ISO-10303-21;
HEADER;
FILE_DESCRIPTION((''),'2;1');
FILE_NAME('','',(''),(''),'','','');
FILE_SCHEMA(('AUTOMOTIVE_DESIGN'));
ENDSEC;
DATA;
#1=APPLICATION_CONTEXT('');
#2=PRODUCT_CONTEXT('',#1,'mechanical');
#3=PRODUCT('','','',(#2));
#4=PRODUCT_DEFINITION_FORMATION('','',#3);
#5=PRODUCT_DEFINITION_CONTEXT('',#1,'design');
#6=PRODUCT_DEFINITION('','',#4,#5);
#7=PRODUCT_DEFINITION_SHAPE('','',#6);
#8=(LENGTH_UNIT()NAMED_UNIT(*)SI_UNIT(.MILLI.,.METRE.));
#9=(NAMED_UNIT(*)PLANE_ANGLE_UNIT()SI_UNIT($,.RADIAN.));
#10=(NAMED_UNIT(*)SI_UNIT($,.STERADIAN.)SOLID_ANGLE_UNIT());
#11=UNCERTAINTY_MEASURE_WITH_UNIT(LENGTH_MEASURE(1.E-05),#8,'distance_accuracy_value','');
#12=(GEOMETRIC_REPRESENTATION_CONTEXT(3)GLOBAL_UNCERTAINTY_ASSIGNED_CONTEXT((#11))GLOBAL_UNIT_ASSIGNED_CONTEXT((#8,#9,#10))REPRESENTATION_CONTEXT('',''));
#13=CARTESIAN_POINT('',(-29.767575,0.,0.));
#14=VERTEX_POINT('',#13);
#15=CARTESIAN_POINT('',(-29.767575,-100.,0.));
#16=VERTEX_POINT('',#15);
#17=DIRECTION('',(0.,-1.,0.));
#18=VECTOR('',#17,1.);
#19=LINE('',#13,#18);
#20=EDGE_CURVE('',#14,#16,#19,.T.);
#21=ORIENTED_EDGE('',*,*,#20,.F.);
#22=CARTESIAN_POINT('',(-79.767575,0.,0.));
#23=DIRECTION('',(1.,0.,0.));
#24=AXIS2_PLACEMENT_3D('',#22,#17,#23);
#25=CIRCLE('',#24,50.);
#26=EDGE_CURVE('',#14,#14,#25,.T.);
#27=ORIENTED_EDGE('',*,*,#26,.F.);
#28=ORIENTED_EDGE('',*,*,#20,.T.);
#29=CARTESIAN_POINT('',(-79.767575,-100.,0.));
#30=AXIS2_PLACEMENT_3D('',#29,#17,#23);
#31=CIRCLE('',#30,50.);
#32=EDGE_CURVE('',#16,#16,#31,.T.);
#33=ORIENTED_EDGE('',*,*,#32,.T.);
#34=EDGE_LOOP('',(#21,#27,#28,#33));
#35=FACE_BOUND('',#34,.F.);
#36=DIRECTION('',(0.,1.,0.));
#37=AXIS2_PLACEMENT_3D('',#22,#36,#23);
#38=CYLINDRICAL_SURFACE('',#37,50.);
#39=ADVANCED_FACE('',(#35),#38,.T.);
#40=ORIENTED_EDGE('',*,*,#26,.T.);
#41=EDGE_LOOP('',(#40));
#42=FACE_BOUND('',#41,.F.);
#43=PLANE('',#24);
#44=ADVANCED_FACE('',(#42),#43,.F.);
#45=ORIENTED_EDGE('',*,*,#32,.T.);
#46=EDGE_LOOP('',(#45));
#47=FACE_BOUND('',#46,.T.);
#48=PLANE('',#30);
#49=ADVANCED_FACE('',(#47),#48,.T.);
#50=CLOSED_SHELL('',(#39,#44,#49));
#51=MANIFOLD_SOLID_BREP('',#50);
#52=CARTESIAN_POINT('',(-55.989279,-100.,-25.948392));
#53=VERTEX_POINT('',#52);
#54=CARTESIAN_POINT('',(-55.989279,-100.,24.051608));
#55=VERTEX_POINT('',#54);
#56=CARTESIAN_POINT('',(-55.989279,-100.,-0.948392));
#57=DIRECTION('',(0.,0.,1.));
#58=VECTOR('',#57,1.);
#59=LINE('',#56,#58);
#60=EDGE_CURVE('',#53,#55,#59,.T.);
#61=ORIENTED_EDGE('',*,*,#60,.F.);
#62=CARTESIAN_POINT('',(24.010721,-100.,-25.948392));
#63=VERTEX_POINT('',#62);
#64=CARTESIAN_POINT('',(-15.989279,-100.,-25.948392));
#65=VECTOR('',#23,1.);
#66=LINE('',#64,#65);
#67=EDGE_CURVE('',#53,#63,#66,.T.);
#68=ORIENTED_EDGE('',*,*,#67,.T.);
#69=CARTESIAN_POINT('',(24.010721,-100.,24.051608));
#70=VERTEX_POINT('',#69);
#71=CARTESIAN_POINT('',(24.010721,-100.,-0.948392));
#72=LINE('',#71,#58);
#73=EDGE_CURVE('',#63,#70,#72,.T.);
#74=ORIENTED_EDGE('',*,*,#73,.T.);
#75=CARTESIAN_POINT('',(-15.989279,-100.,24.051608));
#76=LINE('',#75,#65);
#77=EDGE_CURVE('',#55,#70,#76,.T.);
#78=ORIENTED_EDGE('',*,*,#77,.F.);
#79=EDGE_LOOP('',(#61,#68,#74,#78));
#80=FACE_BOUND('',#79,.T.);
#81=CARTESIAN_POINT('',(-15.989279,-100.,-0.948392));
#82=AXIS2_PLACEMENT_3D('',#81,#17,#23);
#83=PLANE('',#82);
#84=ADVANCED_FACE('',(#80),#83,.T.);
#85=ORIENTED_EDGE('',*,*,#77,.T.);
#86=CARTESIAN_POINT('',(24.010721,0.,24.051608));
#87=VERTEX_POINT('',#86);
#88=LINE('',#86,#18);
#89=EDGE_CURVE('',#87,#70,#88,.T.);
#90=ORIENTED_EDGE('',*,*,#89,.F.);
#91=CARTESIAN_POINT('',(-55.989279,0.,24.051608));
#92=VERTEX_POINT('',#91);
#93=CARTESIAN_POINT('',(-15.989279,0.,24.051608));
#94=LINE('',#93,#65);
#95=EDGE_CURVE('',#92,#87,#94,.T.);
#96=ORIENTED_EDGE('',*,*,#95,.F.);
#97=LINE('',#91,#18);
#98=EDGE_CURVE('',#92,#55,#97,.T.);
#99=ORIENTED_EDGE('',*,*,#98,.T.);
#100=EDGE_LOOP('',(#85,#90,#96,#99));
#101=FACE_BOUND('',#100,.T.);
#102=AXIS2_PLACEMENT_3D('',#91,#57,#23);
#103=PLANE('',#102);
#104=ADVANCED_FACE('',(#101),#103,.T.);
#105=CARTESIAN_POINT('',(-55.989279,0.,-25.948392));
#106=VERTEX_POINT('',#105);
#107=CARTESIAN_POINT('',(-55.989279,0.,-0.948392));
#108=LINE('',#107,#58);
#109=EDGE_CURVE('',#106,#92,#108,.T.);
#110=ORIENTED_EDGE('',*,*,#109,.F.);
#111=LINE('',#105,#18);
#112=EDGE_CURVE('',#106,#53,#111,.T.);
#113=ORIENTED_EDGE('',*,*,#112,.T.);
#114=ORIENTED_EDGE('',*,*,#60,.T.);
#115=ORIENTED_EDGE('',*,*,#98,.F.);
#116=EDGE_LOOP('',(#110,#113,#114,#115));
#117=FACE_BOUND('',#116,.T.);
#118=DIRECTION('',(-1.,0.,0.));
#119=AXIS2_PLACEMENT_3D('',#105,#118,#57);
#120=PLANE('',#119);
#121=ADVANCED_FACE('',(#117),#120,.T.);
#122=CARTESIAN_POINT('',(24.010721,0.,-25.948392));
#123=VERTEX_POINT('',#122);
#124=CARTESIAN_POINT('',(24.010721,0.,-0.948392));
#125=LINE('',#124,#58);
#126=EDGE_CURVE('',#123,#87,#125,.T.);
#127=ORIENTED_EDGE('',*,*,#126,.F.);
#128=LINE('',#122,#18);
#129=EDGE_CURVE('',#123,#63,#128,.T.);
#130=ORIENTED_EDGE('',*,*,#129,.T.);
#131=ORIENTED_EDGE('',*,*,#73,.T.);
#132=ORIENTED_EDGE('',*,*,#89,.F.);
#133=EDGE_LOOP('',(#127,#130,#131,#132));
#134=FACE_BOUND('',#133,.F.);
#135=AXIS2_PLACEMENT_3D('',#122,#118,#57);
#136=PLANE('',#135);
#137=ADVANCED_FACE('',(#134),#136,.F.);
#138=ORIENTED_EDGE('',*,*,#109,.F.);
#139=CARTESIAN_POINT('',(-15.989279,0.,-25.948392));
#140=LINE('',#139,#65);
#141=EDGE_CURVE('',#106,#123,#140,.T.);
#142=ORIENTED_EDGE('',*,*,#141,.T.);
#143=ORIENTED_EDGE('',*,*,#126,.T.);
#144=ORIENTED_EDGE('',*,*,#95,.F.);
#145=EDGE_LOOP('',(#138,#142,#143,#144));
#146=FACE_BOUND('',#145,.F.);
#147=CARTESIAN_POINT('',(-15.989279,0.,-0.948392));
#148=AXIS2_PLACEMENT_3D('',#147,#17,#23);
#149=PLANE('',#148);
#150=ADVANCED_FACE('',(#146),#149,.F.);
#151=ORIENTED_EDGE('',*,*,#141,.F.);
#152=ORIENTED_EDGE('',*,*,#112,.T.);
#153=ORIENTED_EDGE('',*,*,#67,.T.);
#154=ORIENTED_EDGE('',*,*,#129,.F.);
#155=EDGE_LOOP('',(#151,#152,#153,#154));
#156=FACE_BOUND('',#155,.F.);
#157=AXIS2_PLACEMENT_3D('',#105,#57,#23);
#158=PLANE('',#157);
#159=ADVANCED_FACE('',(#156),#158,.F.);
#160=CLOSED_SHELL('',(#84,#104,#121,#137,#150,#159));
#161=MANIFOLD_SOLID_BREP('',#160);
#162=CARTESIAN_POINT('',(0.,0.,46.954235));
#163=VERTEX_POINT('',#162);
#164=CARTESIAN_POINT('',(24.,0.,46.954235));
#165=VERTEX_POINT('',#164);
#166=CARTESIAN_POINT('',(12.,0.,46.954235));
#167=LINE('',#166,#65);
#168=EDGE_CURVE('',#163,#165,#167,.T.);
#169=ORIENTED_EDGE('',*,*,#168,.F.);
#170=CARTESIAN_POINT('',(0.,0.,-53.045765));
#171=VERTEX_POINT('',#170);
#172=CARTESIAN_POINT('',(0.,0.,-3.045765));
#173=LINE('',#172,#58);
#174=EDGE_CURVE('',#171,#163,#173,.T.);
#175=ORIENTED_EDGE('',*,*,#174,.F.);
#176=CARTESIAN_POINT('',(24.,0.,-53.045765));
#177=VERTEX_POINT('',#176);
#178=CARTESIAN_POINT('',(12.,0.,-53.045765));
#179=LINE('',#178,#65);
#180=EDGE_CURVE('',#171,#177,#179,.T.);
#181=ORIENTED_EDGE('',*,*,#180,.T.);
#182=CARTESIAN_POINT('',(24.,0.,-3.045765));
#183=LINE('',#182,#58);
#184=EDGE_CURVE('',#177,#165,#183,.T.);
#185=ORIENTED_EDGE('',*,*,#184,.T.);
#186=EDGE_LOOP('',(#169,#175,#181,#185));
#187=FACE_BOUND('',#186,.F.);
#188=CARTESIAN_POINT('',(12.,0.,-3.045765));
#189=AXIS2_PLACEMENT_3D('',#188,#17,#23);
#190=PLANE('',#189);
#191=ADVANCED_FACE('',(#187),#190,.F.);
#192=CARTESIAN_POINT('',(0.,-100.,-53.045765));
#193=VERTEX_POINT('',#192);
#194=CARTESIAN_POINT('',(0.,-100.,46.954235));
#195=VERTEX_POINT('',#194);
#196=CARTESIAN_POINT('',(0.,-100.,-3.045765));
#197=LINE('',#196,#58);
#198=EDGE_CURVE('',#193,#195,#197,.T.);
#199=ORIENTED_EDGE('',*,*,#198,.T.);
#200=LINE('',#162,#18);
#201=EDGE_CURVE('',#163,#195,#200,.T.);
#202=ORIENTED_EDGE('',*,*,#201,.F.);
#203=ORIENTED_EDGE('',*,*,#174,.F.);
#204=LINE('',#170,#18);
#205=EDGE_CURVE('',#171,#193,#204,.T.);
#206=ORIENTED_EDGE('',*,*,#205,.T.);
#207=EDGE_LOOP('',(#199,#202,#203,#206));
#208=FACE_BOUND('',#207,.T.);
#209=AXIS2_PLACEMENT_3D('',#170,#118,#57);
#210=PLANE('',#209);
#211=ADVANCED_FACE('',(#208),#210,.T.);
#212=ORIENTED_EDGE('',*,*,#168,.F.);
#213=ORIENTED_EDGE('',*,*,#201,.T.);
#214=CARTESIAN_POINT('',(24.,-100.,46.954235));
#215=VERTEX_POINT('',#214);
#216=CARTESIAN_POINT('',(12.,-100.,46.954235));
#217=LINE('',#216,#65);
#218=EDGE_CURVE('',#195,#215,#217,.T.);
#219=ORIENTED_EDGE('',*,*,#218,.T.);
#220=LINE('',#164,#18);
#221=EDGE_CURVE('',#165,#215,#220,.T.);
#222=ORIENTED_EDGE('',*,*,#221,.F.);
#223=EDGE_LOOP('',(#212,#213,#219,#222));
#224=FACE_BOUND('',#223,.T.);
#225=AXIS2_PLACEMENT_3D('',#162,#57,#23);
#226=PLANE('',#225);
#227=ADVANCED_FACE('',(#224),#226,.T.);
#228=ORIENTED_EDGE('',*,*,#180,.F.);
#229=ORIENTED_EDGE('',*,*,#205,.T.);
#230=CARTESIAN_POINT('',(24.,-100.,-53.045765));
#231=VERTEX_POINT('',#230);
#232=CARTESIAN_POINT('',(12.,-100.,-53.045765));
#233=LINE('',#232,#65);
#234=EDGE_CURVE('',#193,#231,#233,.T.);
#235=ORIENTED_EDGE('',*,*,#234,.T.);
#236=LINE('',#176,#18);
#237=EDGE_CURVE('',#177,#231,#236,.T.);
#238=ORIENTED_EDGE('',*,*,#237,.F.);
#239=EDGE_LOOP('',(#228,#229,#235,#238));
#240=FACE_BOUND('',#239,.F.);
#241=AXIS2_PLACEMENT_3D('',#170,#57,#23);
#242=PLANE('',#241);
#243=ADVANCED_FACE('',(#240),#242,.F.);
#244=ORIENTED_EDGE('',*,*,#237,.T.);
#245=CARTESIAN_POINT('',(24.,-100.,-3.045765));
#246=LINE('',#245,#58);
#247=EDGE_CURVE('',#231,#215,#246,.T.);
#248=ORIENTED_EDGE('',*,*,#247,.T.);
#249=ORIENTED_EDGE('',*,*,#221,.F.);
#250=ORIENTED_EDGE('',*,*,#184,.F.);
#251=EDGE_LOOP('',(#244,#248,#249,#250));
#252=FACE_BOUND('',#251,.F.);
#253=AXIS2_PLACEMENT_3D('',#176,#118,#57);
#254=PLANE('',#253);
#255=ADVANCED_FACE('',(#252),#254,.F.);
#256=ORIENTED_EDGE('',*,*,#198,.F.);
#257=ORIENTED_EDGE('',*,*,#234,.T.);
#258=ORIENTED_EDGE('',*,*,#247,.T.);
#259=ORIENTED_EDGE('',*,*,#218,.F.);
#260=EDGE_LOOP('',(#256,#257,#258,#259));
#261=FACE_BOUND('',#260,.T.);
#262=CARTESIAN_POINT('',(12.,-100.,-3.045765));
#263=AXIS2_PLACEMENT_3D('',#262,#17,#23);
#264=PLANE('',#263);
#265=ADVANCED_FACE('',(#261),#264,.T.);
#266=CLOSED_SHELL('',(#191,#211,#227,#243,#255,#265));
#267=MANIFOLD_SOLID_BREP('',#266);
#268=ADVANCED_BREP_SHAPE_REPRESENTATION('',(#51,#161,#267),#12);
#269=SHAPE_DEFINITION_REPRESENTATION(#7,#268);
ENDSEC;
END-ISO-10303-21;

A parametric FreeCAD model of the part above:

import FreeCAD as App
import Part
import Sketcher
from FreeCAD import Vector
Q = App.Units.Quantity

doc = App.newDocument("Part")
body = doc.addObject("PartDesign::Body", "Body")

# Sketch on XZ plane
sketch1 = body.newObject("Sketcher::SketchObject", "Sketch")
sketch1.AttachmentSupport = (doc.getObject("XZ_Plane"), [""])
sketch1.MapMode = "FlatFace"
sketch1.addGeometry([
    Part.LineSegment(Vector(0, 46.954235, 0), Vector(0, -53.045765, 0)),
    Part.LineSegment(Vector(0, -53.045765, 0), Vector(24, -53.045765, 0)),
    Part.LineSegment(Vector(24, -53.045765, 0), Vector(24, 46.954235, 0)),
    Part.LineSegment(Vector(24, 46.954235, 0), Vector(0, 46.954235, 0)),
], False)
sketch1.addConstraint([
    Sketcher.Constraint("Coincident", 0, 2, 1, 1),
    Sketcher.Constraint("Coincident", 1, 2, 2, 1),
    Sketcher.Constraint("Coincident", 2, 2, 3, 1),
    Sketcher.Constraint("Coincident", 3, 2, 0, 1),
    Sketcher.Constraint("Vertical", 0),
    Sketcher.Constraint("Horizontal", 1),
    Sketcher.Constraint("Vertical", 2),
    Sketcher.Constraint("Horizontal", 3),
    Sketcher.Constraint("PointOnObject", 0, 2, -2),
    Sketcher.Constraint("DistanceX", 1, 1, 1, 2, Q("24 mm")),
    Sketcher.Constraint("DistanceY", 0, 2, 0, 1, Q("100 mm")),
    Sketcher.Constraint("DistanceY", 0, 2, -1, 1, Q("53.045765 mm")),
])
pad1 = body.newObject("PartDesign::Pad", "Pad")
pad1.Profile = sketch1
pad1.Length = 100
body2 = doc.addObject("PartDesign::Body", "Body001")

# Sketch on XZ plane
sketch2 = body2.newObject("Sketcher::SketchObject", "Sketch001")
sketch2.AttachmentSupport = (doc.getObject("XZ_Plane001"), [""])
sketch2.MapMode = "FlatFace"
sketch2.addGeometry([
    Part.LineSegment(Vector(-55.989279, 24.051608, 0), Vector(-55.989279, -25.948392, 0)),
    Part.LineSegment(Vector(-55.989279, -25.948392, 0), Vector(24.010721, -25.948392, 0)),
    Part.LineSegment(Vector(24.010721, -25.948392, 0), Vector(24.010721, 24.051608, 0)),
    Part.LineSegment(Vector(24.010721, 24.051608, 0), Vector(-55.989279, 24.051608, 0)),
], False)
sketch2.addConstraint([
    Sketcher.Constraint("Coincident", 0, 2, 1, 1),
    Sketcher.Constraint("Coincident", 1, 2, 2, 1),
    Sketcher.Constraint("Coincident", 2, 2, 3, 1),
    Sketcher.Constraint("Coincident", 3, 2, 0, 1),
    Sketcher.Constraint("Vertical", 0),
    Sketcher.Constraint("Horizontal", 1),
    Sketcher.Constraint("Vertical", 2),
    Sketcher.Constraint("Horizontal", 3),
    Sketcher.Constraint("DistanceX", 1, 1, 1, 2, Q("80 mm")),
    Sketcher.Constraint("DistanceY", 0, 2, 0, 1, Q("50 mm")),
    Sketcher.Constraint("DistanceX", 0, 2, -1, 1, Q("55.989279 mm")),
    Sketcher.Constraint("DistanceY", 0, 2, -1, 1, Q("25.948392 mm")),
])
pad2 = body2.newObject("PartDesign::Pad", "Pad001")
pad2.Profile = sketch2
pad2.Length = 100
body3 = doc.addObject("PartDesign::Body", "Body002")

# Sketch on XZ plane
sketch3 = body3.newObject("Sketcher::SketchObject", "Sketch002")
sketch3.AttachmentSupport = (doc.getObject("XZ_Plane002"), [""])
sketch3.MapMode = "FlatFace"
sketch3.addGeometry(Part.Circle(Vector(-79.767575, 0, 0), Vector(0, 0, 1), 50), False)
sketch3.addConstraint([
    Sketcher.Constraint("PointOnObject", 0, 3, -1),
    Sketcher.Constraint("Diameter", 0, Q("100 mm")),
    Sketcher.Constraint("DistanceX", 0, 3, -1, 1, Q("79.767575 mm")),
])
pad3 = body3.newObject("PartDesign::Pad", "Pad002")
pad3.Profile = sketch3
pad3.Length = 100

doc.recompute()
